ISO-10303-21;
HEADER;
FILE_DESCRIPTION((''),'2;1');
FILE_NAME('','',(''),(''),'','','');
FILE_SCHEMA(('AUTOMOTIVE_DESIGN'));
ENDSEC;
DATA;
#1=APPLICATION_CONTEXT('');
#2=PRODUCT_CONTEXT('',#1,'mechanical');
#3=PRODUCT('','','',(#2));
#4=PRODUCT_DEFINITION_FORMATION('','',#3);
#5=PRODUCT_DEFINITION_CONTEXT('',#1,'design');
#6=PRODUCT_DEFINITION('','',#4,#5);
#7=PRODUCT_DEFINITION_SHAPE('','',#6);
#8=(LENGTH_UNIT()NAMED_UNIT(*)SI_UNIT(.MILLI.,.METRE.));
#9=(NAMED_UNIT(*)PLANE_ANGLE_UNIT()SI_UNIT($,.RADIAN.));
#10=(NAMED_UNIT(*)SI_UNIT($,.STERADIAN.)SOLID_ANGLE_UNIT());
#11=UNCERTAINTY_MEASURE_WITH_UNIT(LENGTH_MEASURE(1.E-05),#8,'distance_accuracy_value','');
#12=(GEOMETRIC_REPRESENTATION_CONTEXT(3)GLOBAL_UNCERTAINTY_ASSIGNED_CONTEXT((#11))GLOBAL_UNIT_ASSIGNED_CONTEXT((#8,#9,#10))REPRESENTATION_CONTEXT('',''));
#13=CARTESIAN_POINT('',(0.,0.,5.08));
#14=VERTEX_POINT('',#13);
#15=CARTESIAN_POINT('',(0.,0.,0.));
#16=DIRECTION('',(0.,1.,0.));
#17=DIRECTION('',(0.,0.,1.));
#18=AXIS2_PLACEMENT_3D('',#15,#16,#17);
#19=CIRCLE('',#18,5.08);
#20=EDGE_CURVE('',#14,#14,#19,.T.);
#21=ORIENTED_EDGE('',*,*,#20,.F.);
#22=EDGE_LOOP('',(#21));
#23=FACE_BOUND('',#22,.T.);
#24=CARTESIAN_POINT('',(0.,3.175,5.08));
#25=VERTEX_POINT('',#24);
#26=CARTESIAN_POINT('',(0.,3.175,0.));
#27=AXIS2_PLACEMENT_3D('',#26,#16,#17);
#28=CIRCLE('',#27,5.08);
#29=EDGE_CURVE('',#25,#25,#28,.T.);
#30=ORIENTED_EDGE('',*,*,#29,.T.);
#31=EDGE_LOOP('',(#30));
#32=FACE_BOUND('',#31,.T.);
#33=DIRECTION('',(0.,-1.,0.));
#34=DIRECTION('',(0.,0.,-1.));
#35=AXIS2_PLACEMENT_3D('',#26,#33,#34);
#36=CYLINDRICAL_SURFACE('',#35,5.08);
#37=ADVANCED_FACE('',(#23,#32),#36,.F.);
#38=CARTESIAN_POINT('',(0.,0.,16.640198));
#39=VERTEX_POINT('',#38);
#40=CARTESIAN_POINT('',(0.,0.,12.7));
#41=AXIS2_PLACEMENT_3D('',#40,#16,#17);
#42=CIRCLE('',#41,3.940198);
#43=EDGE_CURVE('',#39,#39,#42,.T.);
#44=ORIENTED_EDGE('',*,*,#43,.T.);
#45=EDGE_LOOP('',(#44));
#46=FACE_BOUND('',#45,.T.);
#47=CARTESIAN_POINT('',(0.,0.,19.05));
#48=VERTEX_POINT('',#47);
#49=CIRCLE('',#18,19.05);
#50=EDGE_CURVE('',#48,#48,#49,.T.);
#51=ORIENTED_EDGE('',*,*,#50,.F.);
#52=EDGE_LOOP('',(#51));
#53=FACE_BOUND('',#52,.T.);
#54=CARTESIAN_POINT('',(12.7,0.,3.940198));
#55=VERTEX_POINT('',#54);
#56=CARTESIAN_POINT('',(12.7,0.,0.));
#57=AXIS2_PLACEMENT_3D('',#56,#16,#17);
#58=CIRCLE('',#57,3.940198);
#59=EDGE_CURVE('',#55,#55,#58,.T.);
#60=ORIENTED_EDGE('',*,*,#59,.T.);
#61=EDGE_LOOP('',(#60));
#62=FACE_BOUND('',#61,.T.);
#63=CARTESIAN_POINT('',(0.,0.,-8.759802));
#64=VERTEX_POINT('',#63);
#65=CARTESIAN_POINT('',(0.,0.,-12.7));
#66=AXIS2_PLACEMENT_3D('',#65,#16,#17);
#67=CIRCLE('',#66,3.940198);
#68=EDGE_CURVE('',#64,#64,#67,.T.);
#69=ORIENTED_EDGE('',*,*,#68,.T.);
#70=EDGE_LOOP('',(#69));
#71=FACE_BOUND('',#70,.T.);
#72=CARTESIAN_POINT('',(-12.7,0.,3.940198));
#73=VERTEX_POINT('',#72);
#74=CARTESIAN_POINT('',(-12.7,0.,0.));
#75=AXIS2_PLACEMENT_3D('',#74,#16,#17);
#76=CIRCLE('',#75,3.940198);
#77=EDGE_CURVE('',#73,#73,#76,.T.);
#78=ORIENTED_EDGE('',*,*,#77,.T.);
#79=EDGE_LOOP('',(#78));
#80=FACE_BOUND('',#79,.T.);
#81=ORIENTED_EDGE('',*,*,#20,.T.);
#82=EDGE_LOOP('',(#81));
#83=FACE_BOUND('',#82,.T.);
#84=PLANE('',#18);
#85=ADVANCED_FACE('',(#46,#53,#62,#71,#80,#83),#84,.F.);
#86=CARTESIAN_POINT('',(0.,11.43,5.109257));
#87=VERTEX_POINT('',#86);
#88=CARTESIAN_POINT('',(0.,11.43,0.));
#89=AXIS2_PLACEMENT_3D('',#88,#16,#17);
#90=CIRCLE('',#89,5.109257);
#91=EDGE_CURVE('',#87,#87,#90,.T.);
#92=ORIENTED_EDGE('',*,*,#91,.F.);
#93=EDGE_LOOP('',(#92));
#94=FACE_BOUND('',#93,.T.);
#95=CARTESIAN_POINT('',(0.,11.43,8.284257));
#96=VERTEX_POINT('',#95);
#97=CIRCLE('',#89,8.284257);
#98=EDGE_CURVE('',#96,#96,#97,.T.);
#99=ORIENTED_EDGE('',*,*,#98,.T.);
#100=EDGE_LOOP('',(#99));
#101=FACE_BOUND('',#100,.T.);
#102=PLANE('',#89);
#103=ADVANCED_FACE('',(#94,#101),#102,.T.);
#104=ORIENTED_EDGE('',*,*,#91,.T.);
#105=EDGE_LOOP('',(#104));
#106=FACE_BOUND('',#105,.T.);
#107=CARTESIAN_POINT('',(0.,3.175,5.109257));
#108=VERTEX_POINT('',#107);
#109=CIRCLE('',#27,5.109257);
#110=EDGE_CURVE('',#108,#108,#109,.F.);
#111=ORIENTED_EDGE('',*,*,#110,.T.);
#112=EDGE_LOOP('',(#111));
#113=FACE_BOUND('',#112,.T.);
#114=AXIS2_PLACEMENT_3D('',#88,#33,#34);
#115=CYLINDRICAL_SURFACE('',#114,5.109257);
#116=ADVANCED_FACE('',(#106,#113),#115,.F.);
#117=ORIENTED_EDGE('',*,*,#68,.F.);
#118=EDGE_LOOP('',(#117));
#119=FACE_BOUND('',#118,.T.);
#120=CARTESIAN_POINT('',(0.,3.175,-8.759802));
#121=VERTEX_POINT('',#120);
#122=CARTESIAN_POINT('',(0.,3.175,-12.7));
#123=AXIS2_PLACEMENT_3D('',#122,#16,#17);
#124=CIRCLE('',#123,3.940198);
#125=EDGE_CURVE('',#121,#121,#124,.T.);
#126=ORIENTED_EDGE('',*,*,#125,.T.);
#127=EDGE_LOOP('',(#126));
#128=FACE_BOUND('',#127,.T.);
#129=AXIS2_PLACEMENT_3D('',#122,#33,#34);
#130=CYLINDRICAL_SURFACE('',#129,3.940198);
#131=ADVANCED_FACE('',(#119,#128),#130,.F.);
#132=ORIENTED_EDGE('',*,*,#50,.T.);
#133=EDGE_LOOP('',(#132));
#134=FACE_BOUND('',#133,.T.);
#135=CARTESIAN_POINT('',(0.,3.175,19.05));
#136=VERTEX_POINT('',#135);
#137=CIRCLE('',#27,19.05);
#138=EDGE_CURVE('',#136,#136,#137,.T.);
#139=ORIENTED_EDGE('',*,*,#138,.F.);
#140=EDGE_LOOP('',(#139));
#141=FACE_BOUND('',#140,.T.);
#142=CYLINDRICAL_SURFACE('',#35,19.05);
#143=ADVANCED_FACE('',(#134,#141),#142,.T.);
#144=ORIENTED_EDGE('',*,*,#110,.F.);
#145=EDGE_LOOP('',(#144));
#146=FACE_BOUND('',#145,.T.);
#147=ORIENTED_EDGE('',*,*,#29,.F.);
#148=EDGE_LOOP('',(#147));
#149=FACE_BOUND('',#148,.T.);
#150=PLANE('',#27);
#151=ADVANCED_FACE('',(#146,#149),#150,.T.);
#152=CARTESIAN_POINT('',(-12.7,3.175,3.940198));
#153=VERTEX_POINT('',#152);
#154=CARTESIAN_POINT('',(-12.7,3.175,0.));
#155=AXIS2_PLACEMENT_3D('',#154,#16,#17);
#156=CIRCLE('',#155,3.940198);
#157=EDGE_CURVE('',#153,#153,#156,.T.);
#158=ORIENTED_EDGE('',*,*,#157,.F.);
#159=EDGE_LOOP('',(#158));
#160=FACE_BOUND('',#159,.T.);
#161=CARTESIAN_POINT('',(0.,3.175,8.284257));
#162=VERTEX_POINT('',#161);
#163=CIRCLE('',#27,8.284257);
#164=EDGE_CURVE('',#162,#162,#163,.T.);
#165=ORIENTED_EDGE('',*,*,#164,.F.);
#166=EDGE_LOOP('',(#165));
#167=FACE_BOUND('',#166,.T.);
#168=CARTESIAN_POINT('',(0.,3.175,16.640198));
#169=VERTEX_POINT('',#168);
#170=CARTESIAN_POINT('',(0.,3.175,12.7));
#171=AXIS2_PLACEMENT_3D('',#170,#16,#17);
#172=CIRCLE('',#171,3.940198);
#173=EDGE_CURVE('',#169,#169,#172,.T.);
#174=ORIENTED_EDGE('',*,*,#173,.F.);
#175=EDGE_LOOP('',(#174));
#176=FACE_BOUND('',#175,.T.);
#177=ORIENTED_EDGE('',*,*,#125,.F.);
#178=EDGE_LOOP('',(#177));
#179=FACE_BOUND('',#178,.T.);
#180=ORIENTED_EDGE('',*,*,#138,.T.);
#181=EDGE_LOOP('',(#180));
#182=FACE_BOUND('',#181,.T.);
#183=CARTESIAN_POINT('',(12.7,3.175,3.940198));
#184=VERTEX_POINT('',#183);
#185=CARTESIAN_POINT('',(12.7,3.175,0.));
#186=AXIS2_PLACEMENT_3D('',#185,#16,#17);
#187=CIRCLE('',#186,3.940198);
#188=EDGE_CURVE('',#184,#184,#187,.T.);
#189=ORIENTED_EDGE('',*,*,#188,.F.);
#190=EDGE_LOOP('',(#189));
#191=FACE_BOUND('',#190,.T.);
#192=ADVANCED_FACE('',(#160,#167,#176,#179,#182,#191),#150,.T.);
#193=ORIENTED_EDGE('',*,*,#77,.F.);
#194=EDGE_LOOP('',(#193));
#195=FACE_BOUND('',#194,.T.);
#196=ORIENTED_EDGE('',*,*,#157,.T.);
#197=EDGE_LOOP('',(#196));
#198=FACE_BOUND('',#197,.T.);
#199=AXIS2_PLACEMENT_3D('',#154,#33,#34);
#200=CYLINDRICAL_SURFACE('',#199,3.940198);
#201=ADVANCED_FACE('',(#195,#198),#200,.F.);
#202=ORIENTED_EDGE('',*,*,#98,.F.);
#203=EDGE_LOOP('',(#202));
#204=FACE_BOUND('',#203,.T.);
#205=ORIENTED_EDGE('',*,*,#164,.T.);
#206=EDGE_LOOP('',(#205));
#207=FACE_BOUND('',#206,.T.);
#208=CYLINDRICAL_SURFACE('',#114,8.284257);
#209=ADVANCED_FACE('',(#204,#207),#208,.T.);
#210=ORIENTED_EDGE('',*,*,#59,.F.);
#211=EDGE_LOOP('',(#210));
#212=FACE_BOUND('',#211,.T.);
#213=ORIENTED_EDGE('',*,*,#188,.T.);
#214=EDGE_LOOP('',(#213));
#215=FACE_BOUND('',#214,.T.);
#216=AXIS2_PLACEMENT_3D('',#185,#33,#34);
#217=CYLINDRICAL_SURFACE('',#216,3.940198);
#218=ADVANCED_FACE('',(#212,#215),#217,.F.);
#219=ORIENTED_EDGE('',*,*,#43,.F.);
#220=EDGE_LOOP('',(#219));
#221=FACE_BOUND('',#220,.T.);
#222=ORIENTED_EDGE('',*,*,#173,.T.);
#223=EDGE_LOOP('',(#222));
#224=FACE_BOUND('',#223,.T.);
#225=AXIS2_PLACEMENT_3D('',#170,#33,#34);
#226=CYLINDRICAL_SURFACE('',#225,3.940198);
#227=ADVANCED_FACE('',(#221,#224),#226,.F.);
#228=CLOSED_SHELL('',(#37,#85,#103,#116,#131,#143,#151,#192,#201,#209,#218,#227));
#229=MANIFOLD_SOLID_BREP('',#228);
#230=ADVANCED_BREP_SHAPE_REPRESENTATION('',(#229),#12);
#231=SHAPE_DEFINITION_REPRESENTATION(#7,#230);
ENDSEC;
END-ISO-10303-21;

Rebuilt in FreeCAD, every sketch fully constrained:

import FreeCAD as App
import Part
import Sketcher
Q = App.Units.Quantity

doc = App.newDocument("Part")
body = doc.addObject("PartDesign::Body", "Body")

sketch1 = body.newObject("Sketcher::SketchObject", "Sketch")
sketch1.AttachmentSupport = (doc.getObject("XZ_Plane"), [""])
sketch1.MapMode = "FlatFace"
sketch1.addGeometry([
    Part.Circle(App.Vector(0, 0, 0), App.Vector(0, 0, 1), 19.1),
    Part.Circle(App.Vector(0, 12.7, 0), App.Vector(0, 0, 1), 3.9),
    Part.Circle(App.Vector(-12.7, 0, 0), App.Vector(0, 0, 1), 3.9),
    Part.Circle(App.Vector(0, 0, 0), App.Vector(0, 0, 1), 5.1),
    Part.Circle(App.Vector(12.7, 0, 0), App.Vector(0, 0, 1), 3.9),
    Part.Circle(App.Vector(0, -12.7, 0), App.Vector(0, 0, 1), 3.9),
], False)
sketch1.addConstraint([
    Sketcher.Constraint("Coincident", 0, 3, -1, 1),
    Sketcher.Constraint("Coincident", 3, 3, -1, 1),
    Sketcher.Constraint("Equal", 1, 2),
    Sketcher.Constraint("Equal", 2, 4),
    Sketcher.Constraint("Equal", 4, 5),
    Sketcher.Constraint("Symmetric", 2, 3, 4, 3, -1, 1),
    Sketcher.Constraint("Symmetric", 1, 3, 5, 3, -1, 1),
    Sketcher.Constraint("PointOnObject", 1, 3, -2),
    Sketcher.Constraint("PointOnObject", 2, 3, -1),
    Sketcher.Constraint("Diameter", 0, Q("1.5 in")),
    Sketcher.Constraint("Diameter", 3, Q("0.4 in")),
    Sketcher.Constraint("DistanceX", 2, 3, 4, 3, Q("1 in")),
    Sketcher.Constraint("DistanceY", 5, 3, 1, 3, Q("1 in")),
    Sketcher.Constraint("Diameter", 1, 7.880396),
])
pad1 = body.newObject("PartDesign::Pad", "Pad")
pad1.Profile = sketch1
pad1.Length = Q("0.125 in")
pad1.Reversed = True

sketch2 = body.newObject("Sketcher::SketchObject", "Sketch001")
sketch2.AttachmentSupport = (doc.getObject("XZ_Plane"), [""])
sketch2.MapMode = "FlatFace"
sketch2.AttachmentOffset = App.Placement(App.Vector(0, 0, -0.125 * 25.4), App.Rotation())
sketch2.addGeometry([
    Part.Circle(App.Vector(0, 0, 0), App.Vector(0, 0, 1), 8),
    Part.Circle(App.Vector(0, 0, 0), App.Vector(0, 0, 1), 5),
], False)
sketch2.addConstraint([
    Sketcher.Constraint("Coincident", 0, 3, -1, 1),
    Sketcher.Constraint("Coincident", 1, 3, -1, 1),
    Sketcher.Constraint("Diameter", 0, 16.568513),
    Sketcher.Constraint("Diameter", 1, 10.218513),
])
pad2 = body.newObject("PartDesign::Pad", "Pad001")
pad2.Profile = sketch2
pad2.Length = Q("0.325 in")
pad2.Reversed = True

doc.recompute()
